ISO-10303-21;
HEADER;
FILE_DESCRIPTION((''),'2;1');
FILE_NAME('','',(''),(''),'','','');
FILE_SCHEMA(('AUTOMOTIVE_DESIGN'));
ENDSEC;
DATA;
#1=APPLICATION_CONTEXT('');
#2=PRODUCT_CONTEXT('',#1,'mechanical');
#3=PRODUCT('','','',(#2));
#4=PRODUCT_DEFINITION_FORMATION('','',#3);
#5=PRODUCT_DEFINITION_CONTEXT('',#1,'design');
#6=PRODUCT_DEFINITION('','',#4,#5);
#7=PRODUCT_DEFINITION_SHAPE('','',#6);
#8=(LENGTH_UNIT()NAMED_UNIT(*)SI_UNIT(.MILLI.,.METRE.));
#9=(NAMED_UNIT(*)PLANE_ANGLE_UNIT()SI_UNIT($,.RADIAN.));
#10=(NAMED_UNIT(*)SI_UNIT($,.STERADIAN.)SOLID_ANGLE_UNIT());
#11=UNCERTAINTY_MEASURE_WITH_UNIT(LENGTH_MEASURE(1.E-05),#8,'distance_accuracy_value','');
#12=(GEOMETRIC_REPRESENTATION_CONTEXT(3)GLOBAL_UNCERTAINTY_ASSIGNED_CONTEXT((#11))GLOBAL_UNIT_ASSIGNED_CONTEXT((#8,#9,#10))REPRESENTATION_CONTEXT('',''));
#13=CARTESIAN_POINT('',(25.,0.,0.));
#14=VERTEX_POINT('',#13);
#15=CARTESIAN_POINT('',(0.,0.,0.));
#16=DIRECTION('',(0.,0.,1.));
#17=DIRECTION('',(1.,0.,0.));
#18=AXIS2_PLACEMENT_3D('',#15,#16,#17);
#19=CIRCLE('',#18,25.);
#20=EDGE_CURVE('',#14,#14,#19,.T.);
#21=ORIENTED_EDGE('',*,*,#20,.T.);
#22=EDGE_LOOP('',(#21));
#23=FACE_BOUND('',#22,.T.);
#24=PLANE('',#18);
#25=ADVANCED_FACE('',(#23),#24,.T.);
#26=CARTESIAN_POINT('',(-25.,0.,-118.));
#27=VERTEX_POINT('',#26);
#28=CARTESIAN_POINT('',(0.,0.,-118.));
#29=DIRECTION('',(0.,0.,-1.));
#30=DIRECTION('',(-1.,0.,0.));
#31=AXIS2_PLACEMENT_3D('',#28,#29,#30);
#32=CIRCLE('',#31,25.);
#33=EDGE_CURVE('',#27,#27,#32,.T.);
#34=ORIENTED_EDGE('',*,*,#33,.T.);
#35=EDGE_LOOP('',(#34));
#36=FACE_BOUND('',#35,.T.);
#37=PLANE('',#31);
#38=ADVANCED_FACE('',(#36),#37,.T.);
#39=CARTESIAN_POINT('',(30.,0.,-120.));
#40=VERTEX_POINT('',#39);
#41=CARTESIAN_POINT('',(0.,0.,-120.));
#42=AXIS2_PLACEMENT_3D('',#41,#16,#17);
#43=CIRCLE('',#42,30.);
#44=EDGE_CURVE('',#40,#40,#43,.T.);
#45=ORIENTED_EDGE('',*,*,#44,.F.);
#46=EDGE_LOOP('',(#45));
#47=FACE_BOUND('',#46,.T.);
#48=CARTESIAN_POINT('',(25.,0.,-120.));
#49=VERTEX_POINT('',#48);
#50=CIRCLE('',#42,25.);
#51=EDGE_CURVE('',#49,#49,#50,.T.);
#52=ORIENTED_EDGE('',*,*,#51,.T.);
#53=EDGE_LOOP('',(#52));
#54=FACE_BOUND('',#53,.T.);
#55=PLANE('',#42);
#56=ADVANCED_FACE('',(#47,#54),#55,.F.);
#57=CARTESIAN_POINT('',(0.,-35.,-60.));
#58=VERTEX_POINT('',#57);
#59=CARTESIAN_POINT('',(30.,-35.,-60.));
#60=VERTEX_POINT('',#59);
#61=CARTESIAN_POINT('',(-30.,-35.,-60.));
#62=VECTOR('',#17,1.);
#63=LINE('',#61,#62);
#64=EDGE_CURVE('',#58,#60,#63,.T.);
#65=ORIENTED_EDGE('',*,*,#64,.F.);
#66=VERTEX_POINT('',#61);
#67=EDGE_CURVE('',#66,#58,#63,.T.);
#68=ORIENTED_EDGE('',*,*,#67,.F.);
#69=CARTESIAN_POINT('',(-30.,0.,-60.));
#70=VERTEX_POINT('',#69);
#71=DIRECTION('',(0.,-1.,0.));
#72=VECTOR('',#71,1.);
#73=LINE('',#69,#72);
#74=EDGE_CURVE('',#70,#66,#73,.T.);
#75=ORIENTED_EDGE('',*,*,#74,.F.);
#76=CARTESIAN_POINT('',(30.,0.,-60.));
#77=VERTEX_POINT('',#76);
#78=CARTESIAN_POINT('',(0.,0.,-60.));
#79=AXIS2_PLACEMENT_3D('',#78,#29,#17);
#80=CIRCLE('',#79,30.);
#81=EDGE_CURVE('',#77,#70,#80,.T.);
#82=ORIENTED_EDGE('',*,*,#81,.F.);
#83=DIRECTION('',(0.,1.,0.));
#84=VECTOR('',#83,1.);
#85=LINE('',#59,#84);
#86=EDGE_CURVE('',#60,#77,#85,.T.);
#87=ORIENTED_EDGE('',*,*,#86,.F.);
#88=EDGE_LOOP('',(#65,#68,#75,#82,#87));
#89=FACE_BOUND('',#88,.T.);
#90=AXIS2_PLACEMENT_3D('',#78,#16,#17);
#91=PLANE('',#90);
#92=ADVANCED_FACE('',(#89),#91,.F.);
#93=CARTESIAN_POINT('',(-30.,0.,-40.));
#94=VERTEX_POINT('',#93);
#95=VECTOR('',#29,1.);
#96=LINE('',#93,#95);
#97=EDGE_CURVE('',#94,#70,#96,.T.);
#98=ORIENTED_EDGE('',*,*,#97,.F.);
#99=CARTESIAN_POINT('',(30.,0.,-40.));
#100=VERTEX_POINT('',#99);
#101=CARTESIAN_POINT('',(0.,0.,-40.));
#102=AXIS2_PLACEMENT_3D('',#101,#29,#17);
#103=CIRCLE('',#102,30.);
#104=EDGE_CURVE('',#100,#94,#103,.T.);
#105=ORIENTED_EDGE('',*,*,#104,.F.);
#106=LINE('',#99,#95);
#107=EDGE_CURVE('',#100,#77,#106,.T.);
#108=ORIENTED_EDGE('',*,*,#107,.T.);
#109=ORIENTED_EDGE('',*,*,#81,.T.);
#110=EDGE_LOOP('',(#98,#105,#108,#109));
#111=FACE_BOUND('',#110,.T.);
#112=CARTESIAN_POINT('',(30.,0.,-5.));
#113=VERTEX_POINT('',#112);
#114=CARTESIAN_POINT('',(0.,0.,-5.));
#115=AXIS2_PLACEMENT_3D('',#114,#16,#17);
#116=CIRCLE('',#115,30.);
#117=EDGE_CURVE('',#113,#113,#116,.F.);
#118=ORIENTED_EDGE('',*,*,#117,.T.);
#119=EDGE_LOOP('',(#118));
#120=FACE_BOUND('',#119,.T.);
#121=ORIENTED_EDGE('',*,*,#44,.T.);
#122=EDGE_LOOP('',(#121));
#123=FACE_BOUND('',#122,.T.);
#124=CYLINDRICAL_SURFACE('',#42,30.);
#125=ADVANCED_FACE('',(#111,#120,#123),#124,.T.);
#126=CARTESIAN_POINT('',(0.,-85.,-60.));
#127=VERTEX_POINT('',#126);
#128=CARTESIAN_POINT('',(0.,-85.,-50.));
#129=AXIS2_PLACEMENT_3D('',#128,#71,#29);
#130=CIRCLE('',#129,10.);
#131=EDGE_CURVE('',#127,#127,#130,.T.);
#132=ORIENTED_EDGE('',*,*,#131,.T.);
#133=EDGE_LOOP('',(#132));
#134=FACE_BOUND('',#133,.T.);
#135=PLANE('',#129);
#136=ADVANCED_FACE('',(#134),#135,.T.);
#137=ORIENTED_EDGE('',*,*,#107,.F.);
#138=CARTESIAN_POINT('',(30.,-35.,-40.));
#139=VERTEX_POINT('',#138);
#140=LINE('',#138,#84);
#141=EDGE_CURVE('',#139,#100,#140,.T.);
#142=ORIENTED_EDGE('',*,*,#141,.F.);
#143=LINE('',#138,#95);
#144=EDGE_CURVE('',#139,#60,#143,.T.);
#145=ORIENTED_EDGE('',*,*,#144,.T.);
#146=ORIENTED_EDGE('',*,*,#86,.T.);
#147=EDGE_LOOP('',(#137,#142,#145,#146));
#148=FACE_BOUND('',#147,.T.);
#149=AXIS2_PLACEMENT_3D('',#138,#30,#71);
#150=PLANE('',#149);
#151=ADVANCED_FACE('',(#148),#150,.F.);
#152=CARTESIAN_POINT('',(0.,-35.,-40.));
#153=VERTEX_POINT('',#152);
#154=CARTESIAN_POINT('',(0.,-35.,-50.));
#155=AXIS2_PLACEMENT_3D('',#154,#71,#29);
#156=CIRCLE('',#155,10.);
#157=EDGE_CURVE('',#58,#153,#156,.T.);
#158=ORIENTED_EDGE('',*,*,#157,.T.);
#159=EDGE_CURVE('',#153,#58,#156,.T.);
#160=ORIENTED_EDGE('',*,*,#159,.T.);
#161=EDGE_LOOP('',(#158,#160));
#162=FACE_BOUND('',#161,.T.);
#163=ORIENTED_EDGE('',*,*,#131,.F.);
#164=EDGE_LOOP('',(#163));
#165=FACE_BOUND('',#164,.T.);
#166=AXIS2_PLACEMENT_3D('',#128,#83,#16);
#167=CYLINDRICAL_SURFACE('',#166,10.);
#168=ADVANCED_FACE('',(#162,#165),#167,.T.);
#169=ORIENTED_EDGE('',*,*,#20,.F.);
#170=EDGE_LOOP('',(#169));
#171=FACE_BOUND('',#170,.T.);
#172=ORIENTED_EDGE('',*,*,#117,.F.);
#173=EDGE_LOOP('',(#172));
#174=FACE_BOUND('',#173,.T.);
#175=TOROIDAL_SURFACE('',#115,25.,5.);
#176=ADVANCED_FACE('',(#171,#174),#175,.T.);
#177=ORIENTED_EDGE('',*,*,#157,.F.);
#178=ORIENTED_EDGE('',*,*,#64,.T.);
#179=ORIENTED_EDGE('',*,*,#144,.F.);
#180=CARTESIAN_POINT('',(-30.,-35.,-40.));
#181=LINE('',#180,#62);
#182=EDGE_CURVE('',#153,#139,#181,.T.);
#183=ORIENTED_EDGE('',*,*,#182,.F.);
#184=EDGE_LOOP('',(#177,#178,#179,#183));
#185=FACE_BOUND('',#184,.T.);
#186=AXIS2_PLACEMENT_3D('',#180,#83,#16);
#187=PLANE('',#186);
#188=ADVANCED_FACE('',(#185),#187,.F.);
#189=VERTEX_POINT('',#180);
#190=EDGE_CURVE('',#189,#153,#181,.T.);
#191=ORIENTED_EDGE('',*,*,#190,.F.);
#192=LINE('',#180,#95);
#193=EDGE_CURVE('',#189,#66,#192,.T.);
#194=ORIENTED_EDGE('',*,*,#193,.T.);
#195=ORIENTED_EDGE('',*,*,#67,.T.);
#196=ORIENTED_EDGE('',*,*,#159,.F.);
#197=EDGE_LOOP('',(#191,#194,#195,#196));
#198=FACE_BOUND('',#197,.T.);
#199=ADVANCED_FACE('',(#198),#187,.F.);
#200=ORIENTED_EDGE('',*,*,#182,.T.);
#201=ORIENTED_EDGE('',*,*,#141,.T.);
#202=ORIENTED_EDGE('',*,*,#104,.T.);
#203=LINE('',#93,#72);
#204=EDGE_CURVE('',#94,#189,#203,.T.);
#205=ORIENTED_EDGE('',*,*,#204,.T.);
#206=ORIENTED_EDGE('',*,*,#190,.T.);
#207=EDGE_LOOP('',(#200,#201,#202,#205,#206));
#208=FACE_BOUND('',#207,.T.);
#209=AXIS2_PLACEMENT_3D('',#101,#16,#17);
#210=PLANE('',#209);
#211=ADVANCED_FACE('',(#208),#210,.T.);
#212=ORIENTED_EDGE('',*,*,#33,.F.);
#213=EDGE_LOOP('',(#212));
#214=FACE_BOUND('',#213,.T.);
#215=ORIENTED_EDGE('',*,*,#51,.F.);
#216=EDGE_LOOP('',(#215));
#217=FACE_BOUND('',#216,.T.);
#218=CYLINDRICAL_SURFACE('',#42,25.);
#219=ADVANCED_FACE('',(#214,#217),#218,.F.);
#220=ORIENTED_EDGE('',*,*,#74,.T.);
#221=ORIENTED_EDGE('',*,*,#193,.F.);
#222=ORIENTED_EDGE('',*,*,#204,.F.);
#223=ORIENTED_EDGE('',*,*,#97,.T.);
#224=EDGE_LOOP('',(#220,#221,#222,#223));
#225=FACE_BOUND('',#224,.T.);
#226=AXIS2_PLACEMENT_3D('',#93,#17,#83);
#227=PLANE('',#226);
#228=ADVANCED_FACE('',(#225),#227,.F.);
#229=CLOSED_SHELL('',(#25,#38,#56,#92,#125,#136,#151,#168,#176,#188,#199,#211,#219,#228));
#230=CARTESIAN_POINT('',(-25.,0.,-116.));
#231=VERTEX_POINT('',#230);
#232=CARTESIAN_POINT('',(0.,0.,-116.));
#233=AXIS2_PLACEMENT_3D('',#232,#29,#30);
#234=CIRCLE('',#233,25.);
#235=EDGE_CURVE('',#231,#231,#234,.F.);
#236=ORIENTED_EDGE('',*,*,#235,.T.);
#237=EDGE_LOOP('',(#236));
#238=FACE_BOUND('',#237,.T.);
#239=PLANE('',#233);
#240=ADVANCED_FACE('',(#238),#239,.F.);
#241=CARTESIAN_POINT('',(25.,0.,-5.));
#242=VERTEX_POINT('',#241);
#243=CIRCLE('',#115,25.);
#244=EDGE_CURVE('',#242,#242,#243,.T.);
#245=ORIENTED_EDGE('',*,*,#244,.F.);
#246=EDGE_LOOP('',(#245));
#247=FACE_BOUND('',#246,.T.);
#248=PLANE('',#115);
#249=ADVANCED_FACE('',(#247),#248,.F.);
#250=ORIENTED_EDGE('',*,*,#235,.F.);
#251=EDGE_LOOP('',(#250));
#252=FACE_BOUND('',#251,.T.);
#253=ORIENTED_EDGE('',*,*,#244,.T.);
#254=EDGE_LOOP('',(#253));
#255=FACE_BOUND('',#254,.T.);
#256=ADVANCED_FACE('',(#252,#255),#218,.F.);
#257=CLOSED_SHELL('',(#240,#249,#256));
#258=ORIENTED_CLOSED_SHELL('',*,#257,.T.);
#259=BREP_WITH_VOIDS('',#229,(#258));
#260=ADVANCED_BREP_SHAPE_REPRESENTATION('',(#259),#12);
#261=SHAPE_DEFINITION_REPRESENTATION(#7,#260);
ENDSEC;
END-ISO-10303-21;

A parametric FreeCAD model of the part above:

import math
import FreeCAD as App
import Part
import Sketcher
from FreeCAD import Vector
Q = App.Units.Quantity


def edges_at(feature, points):
    """Names of the edges that pass closest to the given points."""
    edges = feature.Shape.Edges
    near = lambda p: min(range(len(edges)), key=lambda i: edges[i].distToShape(Part.Vertex(*p))[0])
    return sorted({f"Edge{near(p) + 1}" for p in points})


def faces_at(feature, points):
    """Names of the faces that lie closest to the given points."""
    faces = feature.Shape.Faces
    near = lambda p: min(range(len(faces)), key=lambda i: faces[i].distToShape(Part.Vertex(*p))[0])
    return sorted({f"Face{near(p) + 1}" for p in points})

doc = App.newDocument("Part")
body = doc.addObject("PartDesign::Body", "Body")

# Sketch on XY plane
sketch1 = body.newObject("Sketcher::SketchObject", "Sketch")
sketch1.AttachmentSupport = (doc.getObject("XY_Plane"), [""])
sketch1.MapMode = "FlatFace"
sketch1.addGeometry(Part.Circle(Vector(0, 0, 0), Vector(0, 0, 1), 30), False)
sketch1.addConstraint([
    Sketcher.Constraint("Coincident", 0, 3, -1, 1),
    Sketcher.Constraint("Diameter", 0, Q("60 mm")),
])
pad1 = body.newObject("PartDesign::Pad", "Pad")
pad1.Profile = sketch1
pad1.Length = 120
pad1.Reversed = True
doc.recompute()

thickness = body.newObject("PartDesign::Thickness", "Thickness")
thickness.Base = (pad1, faces_at(pad1, [(0, 0, -120)]))
thickness.Value = 5
thickness.Reversed = True
thickness.Join = "Intersection"

# Sketch on XY plane
sketch2 = body.newObject("Sketcher::SketchObject", "Sketch001")
sketch2.AttachmentSupport = (doc.getObject("XY_Plane"), [""])
sketch2.MapMode = "FlatFace"
sketch2.AttachmentOffset = App.Placement(Vector(0, 0, -40), App.Rotation())
sketch2.addGeometry([
    Part.LineSegment(Vector(-30, 0, 0), Vector(-30, -35, 0)),
    Part.LineSegment(Vector(-30, -35, 0), Vector(30, -35, 0)),
    Part.LineSegment(Vector(30, -35, 0), Vector(30, 0, 0)),
    Part.ArcOfCircle(Part.Circle(Vector(0, 0, 0), Vector(0, 0, 1), 30), math.radians(180), math.radians(360)),
], False)
sketch2.addConstraint([
    Sketcher.Constraint("Coincident", 0, 2, 1, 1),
    Sketcher.Constraint("Coincident", 1, 2, 2, 1),
    Sketcher.Constraint("Tangent", 2, 2, 3, 2),
    Sketcher.Constraint("Tangent", 3, 1, 0, 1),
    Sketcher.Constraint("Vertical", 0),
    Sketcher.Constraint("Horizontal", 1),
    Sketcher.Constraint("Vertical", 2),
    Sketcher.Constraint("Coincident", 3, 3, -1, 1),
    Sketcher.Constraint("Radius", 3, Q("30 mm")),
    Sketcher.Constraint("DistanceY", 0, 2, 0, 1, Q("35 mm")),
])
pad2 = body.newObject("PartDesign::Pad", "Pad001")
pad2.Profile = sketch2
pad2.Length = 20
pad2.Reversed = True

# Sketch on XZ plane
sketch3 = body.newObject("Sketcher::SketchObject", "Sketch002")
sketch3.AttachmentSupport = (doc.getObject("XZ_Plane"), [""])
sketch3.MapMode = "FlatFace"
sketch3.AttachmentOffset = App.Placement(Vector(0, 0, 35), App.Rotation())
sketch3.addGeometry(Part.Circle(Vector(0, -50, 0), Vector(0, 0, 1), 10), False)
sketch3.addConstraint([
    Sketcher.Constraint("PointOnObject", 0, 3, -2),
    Sketcher.Constraint("Diameter", 0, Q("20 mm")),
    Sketcher.Constraint("DistanceY", 0, 3, -1, 1, Q("50 mm")),
])
pad3 = body.newObject("PartDesign::Pad", "Pad002")
pad3.Profile = sketch3
pad3.Length = 50

# Sketch on XY plane
sketch4 = body.newObject("Sketcher::SketchObject", "Sketch003")
sketch4.AttachmentSupport = (doc.getObject("XY_Plane"), [""])
sketch4.MapMode = "FlatFace"
sketch4.AttachmentOffset = App.Placement(Vector(0, 0, -116), App.Rotation())
sketch4.addGeometry(Part.Circle(Vector(0, 0, 0), Vector(0, 0, 1), 25), False)
sketch4.addConstraint([
    Sketcher.Constraint("Coincident", 0, 3, -1, 1),
    Sketcher.Constraint("Diameter", 0, Q("50 mm")),
])
pad4 = body.newObject("PartDesign::Pad", "Pad003")
pad4.Profile = sketch4
pad4.Length = 2
pad4.Reversed = True
doc.recompute()

fillet = body.newObject("PartDesign::Fillet", "Fillet")
fillet.Base = (pad4, edges_at(pad4, [(-30, 0, 0)]))
fillet.Radius = 5

doc.recompute()
